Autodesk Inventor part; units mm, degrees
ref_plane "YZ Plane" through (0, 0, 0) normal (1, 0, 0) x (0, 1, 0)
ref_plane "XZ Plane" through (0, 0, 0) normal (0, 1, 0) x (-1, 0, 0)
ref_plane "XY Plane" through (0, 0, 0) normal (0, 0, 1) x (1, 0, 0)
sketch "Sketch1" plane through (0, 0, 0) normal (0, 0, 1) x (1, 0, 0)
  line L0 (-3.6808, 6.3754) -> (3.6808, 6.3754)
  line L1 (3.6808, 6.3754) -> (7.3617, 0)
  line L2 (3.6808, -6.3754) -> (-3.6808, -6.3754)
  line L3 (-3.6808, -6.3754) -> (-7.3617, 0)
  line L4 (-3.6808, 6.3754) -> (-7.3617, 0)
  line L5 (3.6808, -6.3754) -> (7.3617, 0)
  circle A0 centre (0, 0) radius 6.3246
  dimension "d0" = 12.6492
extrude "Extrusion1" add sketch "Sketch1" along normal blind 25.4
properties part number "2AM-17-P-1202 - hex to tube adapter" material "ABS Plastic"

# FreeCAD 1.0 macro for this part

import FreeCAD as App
import Part
import Sketcher

V = App.Vector
Q = App.Units.Quantity

doc = App.newDocument("Part")
body = doc.addObject("PartDesign::Body", "Body")

sketch1 = body.newObject("Sketcher::SketchObject", "Sketch")
sketch1.AttachmentSupport = (doc.getObject("XY_Plane"), [""])
sketch1.MapMode = "FlatFace"
sketch1.addGeometry(Part.LineSegment(V(4, 6, 0), V(-4, 6, 0)), False)
sketch1.addGeometry(Part.LineSegment(V(-4, 6, 0), V(-7, 0, 0)), False)
sketch1.addGeometry(Part.LineSegment(V(-7, 0, 0), V(-4, -6, 0)), False)
sketch1.addGeometry(Part.LineSegment(V(-4, -6, 0), V(4, -6, 0)), False)
sketch1.addGeometry(Part.LineSegment(V(4, -6, 0), V(7, 0, 0)), False)
sketch1.addGeometry(Part.LineSegment(V(7, 0, 0), V(4, 6, 0)), False)
sketch1.addGeometry(Part.Circle(V(0, 0, 0), V(0, 0, 1), 6), False)
sketch1.addConstraint(Sketcher.Constraint("Coincident", 0, 2, 1, 1))
sketch1.addConstraint(Sketcher.Constraint("Coincident", 1, 2, 2, 1))
sketch1.addConstraint(Sketcher.Constraint("Coincident", 2, 2, 3, 1))
sketch1.addConstraint(Sketcher.Constraint("Coincident", 3, 2, 4, 1))
sketch1.addConstraint(Sketcher.Constraint("Coincident", 4, 2, 5, 1))
sketch1.addConstraint(Sketcher.Constraint("Coincident", 5, 2, 0, 1))
sketch1.addConstraint(Sketcher.Constraint("Horizontal", 0))
sketch1.addConstraint(Sketcher.Constraint("Horizontal", 3))
sketch1.addConstraint(Sketcher.Constraint("Coincident", 6, 3, -1, 1))
sketch1.addConstraint(Sketcher.Constraint("Symmetric", 0, 2, 3, 2, -1, 1))
sketch1.addConstraint(Sketcher.Constraint("Symmetric", 1, 2, 4, 2, -1, 1))
sketch1.addConstraint(Sketcher.Constraint("PointOnObject", 1, 2, -1))
sketch1.addConstraint(Sketcher.Constraint("Parallel", 2, 5))
sketch1.addConstraint(Sketcher.Constraint("Vertical", 0, 2, 2, 2))
sketch1.addConstraint(Sketcher.Constraint("Diameter", 6, Q("0.498 in")))
sketch1.addConstraint(Sketcher.Constraint("Angle", 1, Q("-120.0004 deg")))
sketch1.addConstraint(Sketcher.Constraint("DistanceY", -1, 1, 0, 2, Q("0.251 in")))
sketch1.addConstraint(Sketcher.Constraint("DistanceX", 0, 2, 0, 1, 7.3616))
pad1 = body.newObject("PartDesign::Pad", "Pad")
pad1.Profile = sketch1
pad1.Length = Q("1 in")

doc.recompute()
